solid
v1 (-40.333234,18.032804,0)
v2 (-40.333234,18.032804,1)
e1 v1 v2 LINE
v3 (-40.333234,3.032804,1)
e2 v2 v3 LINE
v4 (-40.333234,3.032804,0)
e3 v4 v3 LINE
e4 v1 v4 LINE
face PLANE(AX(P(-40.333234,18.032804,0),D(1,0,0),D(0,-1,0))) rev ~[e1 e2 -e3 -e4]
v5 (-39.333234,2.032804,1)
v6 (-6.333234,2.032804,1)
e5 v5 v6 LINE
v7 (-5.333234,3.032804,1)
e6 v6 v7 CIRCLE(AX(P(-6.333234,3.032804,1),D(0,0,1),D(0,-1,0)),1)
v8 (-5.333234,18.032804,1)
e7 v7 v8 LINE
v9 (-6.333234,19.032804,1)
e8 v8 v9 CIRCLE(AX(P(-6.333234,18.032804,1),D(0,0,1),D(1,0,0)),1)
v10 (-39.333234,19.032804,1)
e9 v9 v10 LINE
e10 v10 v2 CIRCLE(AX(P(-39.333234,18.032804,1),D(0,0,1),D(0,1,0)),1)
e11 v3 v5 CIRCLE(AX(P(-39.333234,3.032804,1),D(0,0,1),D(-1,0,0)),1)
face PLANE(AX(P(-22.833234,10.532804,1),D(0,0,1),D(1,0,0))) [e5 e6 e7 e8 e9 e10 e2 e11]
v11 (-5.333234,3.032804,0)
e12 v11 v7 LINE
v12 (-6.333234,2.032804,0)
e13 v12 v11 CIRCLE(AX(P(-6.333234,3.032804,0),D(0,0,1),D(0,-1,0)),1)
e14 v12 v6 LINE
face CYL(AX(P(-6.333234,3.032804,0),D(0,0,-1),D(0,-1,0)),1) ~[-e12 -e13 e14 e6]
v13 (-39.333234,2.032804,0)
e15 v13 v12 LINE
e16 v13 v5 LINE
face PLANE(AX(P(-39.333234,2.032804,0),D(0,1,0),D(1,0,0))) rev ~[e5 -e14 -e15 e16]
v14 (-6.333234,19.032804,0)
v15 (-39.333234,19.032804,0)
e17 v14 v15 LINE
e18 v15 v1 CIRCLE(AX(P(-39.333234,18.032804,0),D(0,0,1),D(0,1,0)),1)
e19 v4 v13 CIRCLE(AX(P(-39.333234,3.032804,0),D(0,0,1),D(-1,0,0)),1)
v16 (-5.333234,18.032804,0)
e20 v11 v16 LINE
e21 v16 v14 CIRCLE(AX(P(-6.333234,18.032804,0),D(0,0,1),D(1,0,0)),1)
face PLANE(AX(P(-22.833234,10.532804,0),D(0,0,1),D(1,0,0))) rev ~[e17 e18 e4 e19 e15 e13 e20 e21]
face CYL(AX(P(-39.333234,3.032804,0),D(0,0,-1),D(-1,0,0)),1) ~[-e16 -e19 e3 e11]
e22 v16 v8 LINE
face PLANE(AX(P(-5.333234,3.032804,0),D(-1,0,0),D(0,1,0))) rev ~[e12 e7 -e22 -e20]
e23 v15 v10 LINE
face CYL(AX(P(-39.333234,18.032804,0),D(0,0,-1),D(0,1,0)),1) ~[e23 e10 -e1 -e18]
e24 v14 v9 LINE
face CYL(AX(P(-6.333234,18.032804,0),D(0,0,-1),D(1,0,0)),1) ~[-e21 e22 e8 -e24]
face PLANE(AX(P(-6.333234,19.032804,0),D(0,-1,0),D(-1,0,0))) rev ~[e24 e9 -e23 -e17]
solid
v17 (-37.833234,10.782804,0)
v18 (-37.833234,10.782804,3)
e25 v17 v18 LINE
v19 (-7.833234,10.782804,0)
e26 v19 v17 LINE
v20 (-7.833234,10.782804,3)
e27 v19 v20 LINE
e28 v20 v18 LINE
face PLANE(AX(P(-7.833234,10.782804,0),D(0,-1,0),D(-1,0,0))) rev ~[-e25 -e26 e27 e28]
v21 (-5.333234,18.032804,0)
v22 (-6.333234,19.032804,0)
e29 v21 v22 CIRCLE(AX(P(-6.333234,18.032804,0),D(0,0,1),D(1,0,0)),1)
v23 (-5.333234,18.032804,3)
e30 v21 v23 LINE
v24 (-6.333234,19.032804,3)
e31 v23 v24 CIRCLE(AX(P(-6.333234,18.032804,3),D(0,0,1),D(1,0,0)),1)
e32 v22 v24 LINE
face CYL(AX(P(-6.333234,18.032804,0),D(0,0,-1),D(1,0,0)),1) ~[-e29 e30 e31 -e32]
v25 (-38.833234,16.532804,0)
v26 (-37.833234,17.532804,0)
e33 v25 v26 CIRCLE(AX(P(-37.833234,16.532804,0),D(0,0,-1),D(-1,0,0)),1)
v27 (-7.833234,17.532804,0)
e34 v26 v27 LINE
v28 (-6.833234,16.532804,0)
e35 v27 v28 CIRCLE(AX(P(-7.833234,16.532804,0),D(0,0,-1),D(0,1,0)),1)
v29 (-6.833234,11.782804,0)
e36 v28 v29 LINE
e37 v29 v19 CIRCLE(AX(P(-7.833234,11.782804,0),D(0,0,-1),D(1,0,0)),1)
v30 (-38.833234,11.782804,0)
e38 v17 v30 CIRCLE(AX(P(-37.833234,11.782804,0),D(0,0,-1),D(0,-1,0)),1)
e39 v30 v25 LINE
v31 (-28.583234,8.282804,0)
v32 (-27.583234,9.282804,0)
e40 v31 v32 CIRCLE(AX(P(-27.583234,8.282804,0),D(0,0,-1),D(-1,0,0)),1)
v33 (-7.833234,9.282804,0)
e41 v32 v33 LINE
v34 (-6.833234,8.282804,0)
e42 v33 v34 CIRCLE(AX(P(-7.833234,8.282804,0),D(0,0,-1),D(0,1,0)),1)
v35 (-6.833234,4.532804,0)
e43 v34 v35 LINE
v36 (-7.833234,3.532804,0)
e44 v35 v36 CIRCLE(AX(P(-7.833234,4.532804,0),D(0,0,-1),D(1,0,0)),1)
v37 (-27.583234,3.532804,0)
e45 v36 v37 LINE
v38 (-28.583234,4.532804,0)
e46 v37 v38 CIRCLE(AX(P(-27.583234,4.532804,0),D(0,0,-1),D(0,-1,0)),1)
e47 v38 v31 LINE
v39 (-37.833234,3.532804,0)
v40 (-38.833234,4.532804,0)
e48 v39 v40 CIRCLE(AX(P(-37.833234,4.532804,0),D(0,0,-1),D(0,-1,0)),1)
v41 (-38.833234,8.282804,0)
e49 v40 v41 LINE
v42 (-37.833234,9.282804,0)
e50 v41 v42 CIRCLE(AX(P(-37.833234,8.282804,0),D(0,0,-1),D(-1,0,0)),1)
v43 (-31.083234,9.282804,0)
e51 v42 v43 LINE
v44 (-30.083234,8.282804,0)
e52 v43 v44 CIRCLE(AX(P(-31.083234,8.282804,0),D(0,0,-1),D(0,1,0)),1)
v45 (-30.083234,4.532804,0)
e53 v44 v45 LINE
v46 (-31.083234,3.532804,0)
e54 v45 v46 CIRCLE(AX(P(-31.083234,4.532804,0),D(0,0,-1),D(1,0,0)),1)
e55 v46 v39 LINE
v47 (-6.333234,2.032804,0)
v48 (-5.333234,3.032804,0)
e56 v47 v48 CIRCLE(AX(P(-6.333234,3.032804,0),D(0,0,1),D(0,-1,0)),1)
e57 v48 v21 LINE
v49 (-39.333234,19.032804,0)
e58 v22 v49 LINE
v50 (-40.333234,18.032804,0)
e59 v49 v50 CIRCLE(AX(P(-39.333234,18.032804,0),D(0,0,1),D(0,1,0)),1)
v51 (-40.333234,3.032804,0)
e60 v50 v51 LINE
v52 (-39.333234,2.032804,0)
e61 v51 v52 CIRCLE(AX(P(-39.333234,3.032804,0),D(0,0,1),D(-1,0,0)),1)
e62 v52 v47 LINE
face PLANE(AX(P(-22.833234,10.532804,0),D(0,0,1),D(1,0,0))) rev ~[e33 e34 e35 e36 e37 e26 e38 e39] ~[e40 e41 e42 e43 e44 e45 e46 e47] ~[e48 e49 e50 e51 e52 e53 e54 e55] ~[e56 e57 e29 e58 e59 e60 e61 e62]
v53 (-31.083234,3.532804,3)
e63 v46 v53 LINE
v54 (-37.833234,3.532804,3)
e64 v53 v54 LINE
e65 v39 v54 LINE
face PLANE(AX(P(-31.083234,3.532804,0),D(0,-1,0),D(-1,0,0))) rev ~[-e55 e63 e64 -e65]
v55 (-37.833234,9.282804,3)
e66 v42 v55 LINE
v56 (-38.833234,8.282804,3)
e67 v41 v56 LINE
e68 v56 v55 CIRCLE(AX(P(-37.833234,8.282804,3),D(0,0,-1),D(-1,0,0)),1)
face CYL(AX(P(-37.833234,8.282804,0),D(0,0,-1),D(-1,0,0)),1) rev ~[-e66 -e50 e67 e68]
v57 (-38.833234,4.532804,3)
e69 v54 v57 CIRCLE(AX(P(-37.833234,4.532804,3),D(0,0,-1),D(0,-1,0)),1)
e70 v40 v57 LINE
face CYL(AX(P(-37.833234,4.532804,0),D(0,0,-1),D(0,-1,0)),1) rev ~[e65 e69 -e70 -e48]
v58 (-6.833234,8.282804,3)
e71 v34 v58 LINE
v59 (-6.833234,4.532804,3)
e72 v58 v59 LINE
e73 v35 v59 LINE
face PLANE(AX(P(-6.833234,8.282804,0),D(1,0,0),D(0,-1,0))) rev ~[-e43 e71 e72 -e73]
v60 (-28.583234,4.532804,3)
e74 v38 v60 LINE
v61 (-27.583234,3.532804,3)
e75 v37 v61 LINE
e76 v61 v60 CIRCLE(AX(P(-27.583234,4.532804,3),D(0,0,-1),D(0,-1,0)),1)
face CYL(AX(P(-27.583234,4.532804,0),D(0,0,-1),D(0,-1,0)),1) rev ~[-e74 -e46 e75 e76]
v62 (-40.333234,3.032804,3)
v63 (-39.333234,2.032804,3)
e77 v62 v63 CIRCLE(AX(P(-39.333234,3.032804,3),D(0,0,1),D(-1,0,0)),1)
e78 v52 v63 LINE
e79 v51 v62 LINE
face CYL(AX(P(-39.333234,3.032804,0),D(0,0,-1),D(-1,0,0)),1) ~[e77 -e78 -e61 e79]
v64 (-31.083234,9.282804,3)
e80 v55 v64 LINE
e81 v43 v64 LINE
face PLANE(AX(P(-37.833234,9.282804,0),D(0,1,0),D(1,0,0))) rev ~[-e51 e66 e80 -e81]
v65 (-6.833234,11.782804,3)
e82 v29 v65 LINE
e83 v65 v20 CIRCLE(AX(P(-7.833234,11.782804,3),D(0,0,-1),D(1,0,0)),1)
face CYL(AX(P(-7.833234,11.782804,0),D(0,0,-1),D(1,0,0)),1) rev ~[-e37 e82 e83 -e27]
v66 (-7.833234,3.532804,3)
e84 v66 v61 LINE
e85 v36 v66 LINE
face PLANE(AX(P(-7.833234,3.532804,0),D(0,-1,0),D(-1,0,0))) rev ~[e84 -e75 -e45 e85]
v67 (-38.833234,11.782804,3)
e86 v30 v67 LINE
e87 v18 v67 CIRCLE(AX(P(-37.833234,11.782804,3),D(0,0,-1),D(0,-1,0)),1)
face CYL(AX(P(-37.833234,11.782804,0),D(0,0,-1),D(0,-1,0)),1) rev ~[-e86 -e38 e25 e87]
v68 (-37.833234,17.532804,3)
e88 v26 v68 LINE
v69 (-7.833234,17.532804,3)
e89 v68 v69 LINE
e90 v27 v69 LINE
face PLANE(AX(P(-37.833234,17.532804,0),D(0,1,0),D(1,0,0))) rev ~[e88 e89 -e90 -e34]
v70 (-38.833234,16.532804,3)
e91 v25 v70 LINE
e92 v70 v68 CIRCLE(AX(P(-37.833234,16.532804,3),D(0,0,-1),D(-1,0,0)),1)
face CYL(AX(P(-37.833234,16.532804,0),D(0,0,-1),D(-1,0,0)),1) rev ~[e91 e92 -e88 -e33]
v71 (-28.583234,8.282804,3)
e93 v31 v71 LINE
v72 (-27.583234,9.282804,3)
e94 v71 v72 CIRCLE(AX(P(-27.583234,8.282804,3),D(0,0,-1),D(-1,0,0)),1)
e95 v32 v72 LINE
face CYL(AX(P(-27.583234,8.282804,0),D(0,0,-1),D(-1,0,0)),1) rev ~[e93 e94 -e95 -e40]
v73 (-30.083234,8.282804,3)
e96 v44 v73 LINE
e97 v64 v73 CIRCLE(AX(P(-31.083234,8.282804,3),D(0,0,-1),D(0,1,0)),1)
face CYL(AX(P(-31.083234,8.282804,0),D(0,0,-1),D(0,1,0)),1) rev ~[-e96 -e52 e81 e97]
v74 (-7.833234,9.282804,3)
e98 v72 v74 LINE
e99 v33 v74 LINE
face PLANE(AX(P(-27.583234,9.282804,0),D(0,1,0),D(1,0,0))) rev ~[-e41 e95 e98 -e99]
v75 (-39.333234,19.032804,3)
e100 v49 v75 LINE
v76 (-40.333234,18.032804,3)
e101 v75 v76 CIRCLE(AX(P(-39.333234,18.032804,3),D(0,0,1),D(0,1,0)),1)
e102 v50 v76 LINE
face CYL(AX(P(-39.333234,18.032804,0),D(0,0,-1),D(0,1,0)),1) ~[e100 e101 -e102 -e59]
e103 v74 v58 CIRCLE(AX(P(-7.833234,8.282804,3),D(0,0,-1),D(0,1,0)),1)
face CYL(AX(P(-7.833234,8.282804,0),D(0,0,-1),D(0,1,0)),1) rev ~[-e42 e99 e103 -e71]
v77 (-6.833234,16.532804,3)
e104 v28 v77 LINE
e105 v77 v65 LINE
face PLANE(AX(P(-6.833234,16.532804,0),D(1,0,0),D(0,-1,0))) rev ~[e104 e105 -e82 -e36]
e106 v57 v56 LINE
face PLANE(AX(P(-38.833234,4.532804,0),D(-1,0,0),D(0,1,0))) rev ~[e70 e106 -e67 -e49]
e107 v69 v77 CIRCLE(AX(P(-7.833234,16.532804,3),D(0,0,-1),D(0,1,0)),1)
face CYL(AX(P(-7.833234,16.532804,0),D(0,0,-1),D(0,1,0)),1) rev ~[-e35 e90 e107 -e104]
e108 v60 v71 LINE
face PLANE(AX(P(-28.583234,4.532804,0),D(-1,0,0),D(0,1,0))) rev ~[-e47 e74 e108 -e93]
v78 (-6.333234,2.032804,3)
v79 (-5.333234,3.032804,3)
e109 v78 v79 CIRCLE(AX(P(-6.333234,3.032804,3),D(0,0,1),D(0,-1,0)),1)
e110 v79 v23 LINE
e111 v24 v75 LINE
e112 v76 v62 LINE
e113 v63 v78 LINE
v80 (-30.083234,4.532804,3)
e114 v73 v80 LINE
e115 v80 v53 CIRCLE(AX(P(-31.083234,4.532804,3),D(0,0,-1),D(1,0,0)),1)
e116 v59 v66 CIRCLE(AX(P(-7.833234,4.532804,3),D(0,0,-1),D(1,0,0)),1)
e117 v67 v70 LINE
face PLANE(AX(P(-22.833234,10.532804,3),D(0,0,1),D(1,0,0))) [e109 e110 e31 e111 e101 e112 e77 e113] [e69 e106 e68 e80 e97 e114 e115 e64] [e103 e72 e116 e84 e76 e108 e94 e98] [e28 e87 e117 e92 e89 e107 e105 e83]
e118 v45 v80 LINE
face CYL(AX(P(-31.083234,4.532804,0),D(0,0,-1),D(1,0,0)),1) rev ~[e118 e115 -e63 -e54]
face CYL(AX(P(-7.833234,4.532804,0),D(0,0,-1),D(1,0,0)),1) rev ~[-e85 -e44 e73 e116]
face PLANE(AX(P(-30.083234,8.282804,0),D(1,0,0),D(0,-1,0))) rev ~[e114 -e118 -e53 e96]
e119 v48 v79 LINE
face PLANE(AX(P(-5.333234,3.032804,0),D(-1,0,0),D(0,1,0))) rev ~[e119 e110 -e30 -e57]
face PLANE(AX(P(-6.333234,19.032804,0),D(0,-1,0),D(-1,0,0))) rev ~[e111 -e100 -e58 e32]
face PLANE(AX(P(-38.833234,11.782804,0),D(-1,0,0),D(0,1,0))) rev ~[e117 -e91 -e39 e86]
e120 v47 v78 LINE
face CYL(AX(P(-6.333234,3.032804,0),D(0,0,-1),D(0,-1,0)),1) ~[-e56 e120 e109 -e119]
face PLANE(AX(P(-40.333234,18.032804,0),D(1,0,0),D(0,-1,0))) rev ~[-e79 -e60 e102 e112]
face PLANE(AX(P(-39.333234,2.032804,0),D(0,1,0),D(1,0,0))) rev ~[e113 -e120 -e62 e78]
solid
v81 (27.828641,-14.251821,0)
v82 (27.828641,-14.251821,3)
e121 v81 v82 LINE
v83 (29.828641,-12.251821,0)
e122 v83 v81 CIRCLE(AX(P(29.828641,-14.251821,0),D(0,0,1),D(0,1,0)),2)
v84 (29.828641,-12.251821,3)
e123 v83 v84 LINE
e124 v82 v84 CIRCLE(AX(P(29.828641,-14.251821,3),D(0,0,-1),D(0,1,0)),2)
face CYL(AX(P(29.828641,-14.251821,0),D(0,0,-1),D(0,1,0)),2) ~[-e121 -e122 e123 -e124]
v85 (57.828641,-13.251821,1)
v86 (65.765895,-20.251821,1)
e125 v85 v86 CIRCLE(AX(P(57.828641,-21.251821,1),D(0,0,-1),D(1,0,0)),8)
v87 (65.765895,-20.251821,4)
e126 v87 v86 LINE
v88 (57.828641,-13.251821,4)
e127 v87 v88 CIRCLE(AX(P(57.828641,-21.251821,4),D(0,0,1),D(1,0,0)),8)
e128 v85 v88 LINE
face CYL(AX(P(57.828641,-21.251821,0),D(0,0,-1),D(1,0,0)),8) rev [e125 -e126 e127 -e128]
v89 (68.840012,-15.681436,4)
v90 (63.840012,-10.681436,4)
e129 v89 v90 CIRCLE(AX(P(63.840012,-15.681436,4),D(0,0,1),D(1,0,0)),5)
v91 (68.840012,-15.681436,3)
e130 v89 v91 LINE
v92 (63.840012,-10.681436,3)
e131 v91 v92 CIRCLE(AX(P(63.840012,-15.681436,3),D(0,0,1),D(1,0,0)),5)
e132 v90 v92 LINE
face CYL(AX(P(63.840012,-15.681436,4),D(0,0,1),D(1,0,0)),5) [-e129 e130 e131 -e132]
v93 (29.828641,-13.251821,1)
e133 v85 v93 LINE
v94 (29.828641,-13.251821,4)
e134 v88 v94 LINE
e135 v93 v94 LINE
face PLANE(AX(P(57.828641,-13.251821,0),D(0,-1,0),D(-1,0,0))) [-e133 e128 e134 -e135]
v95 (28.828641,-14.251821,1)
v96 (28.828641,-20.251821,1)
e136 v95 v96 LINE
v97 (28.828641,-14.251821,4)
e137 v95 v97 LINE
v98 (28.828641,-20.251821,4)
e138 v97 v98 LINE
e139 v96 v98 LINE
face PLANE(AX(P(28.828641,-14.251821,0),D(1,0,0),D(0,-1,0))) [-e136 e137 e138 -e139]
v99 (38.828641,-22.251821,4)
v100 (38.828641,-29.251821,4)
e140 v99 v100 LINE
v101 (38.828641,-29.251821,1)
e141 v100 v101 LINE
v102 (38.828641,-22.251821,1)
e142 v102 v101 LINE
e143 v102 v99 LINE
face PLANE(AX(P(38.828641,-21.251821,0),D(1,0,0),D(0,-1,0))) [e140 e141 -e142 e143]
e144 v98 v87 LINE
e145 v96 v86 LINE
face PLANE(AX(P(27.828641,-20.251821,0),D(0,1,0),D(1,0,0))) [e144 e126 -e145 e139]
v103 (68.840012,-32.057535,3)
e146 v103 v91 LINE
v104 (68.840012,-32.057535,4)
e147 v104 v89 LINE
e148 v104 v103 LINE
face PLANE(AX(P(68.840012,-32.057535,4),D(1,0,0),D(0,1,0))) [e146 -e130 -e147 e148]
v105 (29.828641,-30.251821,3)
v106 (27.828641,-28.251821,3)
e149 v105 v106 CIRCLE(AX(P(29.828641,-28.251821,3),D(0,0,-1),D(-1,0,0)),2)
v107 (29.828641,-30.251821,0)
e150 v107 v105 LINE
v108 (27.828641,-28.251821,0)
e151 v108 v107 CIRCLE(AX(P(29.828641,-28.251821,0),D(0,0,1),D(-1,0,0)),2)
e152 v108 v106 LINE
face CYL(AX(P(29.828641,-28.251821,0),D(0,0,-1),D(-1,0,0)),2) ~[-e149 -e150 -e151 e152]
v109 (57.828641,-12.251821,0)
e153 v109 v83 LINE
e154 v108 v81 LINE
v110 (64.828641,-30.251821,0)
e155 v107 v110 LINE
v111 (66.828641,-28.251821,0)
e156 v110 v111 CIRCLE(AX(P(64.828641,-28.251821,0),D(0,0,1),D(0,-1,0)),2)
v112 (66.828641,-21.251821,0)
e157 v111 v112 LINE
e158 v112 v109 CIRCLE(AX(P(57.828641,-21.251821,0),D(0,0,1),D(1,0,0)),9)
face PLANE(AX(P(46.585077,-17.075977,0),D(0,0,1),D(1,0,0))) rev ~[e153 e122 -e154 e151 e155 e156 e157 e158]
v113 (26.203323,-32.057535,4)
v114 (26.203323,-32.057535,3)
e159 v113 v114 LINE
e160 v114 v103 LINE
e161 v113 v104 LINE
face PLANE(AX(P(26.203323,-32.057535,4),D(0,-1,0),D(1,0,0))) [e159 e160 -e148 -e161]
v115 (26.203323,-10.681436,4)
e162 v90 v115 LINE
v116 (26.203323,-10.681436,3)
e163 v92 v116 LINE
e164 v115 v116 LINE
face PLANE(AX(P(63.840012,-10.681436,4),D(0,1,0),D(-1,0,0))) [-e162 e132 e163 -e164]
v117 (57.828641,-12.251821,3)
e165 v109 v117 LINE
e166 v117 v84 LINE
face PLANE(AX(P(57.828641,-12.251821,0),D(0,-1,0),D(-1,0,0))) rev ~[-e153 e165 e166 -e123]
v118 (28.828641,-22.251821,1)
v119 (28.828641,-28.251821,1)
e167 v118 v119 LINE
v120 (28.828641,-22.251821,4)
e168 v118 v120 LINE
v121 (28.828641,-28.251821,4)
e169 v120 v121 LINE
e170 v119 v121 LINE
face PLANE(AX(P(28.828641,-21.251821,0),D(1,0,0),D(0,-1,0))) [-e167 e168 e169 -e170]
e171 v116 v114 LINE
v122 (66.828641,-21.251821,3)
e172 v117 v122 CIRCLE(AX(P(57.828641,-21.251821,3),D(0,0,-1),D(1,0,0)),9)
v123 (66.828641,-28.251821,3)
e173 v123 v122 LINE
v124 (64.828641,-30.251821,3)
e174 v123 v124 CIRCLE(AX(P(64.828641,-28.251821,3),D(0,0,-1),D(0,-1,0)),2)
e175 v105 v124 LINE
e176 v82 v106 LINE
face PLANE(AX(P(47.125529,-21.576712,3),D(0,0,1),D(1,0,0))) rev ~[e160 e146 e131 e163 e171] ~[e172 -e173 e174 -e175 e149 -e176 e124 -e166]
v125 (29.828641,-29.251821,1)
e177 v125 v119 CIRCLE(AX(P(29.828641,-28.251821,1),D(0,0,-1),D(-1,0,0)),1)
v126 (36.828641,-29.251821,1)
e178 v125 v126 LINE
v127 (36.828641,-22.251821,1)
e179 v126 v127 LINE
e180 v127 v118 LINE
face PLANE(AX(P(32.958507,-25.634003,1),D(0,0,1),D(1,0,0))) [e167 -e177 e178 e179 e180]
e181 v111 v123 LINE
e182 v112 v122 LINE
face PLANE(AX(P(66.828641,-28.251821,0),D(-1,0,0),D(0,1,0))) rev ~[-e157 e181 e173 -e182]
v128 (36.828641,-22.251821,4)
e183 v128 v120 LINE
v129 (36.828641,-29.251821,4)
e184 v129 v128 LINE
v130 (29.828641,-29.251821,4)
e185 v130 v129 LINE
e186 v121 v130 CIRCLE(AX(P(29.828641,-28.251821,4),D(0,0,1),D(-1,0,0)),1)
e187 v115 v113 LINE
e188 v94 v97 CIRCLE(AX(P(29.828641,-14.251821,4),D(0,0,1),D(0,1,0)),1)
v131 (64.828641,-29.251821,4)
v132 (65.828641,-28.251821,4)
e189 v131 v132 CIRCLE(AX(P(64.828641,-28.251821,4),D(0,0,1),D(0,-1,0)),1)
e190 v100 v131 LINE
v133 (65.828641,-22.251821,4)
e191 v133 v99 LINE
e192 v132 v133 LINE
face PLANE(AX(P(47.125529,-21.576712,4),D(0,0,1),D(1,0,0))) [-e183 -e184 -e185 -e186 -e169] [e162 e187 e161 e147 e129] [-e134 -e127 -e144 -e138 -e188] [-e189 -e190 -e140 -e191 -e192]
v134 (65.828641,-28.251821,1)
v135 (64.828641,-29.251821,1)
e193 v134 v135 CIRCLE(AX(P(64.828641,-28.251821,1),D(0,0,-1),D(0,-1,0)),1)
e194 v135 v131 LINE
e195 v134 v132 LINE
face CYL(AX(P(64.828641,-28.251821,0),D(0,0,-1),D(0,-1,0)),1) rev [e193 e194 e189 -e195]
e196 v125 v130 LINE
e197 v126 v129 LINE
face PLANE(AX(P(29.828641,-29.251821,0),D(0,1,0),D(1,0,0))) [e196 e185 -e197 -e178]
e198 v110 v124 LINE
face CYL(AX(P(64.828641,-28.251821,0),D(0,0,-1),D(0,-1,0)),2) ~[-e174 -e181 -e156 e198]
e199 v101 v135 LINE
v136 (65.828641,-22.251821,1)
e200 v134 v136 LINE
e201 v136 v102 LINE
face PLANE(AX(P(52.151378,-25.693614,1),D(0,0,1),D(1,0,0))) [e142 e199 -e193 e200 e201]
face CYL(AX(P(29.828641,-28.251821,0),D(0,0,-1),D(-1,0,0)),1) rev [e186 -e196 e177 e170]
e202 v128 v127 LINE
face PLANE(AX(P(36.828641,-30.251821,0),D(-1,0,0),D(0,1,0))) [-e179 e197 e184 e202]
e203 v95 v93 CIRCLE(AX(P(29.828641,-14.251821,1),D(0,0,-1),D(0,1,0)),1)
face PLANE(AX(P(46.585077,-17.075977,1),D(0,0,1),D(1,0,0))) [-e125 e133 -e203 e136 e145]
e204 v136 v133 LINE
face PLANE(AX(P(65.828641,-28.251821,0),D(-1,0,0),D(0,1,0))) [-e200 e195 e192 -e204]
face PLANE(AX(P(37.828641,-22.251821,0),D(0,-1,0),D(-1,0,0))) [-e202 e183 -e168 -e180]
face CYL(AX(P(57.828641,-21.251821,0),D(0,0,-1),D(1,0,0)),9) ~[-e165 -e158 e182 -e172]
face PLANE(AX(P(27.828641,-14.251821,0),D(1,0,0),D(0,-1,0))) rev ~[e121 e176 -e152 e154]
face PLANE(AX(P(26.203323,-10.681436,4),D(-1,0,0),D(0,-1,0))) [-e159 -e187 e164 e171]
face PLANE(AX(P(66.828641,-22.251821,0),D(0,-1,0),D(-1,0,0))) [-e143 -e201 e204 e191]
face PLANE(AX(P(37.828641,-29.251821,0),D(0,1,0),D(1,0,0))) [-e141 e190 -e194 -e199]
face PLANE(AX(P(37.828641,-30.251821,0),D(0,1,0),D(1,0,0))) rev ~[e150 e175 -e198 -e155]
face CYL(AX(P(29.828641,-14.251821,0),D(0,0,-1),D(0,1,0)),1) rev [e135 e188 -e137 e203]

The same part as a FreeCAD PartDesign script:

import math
import FreeCAD as App
import Part
import Sketcher
from FreeCAD import Vector


def faces_at(feature, points):
    """Names of the faces that lie closest to the given points."""
    faces = feature.Shape.Faces
    near = lambda p: min(range(len(faces)), key=lambda i: faces[i].distToShape(Part.Vertex(*p))[0])
    return sorted({f"Face{near(p) + 1}" for p in points})

doc = App.newDocument("Part")
body = doc.addObject("PartDesign::Body", "Body")

# Sketch on XY plane
sketch1 = body.newObject("Sketcher::SketchObject", "Sketch")
sketch1.AttachmentSupport = (doc.getObject("XY_Plane"), [""])
sketch1.MapMode = "FlatFace"
sketch1.addGeometry([
    Part.ArcOfCircle(Part.Circle(Vector(-39.3, 3, 0), Vector(0, 0, 1), 1), math.radians(180), math.radians(270)),  # 0
    Part.LineSegment(Vector(-39.3, 2, 0), Vector(-6.3, 2, 0)),  # 1
    Part.ArcOfCircle(Part.Circle(Vector(-6.3, 3, 0), Vector(0, 0, 1), 1), math.radians(-90), math.radians(0)),  # 2
    Part.LineSegment(Vector(-5.3, 3, 0), Vector(-5.3, 18, 0)),  # 3
    Part.ArcOfCircle(Part.Circle(Vector(-6.3, 18, 0), Vector(0, 0, 1), 1), math.radians(0), math.radians(90)),  # 4
    Part.LineSegment(Vector(-6.3, 19, 0), Vector(-39.3, 19, 0)),  # 5
    Part.ArcOfCircle(Part.Circle(Vector(-39.3, 18, 0), Vector(0, 0, 1), 1), math.radians(90), math.radians(180)),  # 6
    Part.LineSegment(Vector(-40.3, 18, 0), Vector(-40.3, 3, 0)),  # 7
    Part.LineSegment(Vector(-31.1, 3.5, 0), Vector(-37.8, 3.5, 0)),  # 8
    Part.ArcOfCircle(Part.Circle(Vector(-37.8, 4.5, 0), Vector(0, 0, 1), 1), math.radians(180), math.radians(270)),  # 9
    Part.LineSegment(Vector(-38.8, 4.5, 0), Vector(-38.8, 8.3, 0)),  # 10
    Part.ArcOfCircle(Part.Circle(Vector(-37.8, 8.3, 0), Vector(0, 0, 1), 1), math.radians(90), math.radians(180)),  # 11
    Part.LineSegment(Vector(-37.8, 9.3, 0), Vector(-31.1, 9.3, 0)),  # 12
    Part.ArcOfCircle(Part.Circle(Vector(-31.1, 8.3, 0), Vector(0, 0, 1), 1), math.radians(0), math.radians(90)),  # 13
    Part.LineSegment(Vector(-30.1, 8.3, 0), Vector(-30.1, 4.5, 0)),  # 14
    Part.ArcOfCircle(Part.Circle(Vector(-31.1, 4.5, 0), Vector(0, 0, 1), 1), math.radians(-90), math.radians(0)),  # 15
    Part.ArcOfCircle(Part.Circle(Vector(-7.8, 8.3, 0), Vector(0, 0, 1), 1), math.radians(0), math.radians(90)),  # 16
    Part.LineSegment(Vector(-6.8, 8.3, 0), Vector(-6.8, 4.5, 0)),  # 17
    Part.ArcOfCircle(Part.Circle(Vector(-7.8, 4.5, 0), Vector(0, 0, 1), 1), math.radians(-90), math.radians(0)),  # 18
    Part.LineSegment(Vector(-7.8, 3.5, 0), Vector(-27.6, 3.5, 0)),  # 19
    Part.ArcOfCircle(Part.Circle(Vector(-27.6, 4.5, 0), Vector(0, 0, 1), 1), math.radians(180), math.radians(270)),  # 20
    Part.LineSegment(Vector(-28.6, 4.5, 0), Vector(-28.6, 8.3, 0)),  # 21
    Part.ArcOfCircle(Part.Circle(Vector(-27.6, 8.3, 0), Vector(0, 0, 1), 1), math.radians(90), math.radians(180)),  # 22
    Part.LineSegment(Vector(-27.6, 9.3, 0), Vector(-7.8, 9.3, 0)),  # 23
    Part.LineSegment(Vector(-38.8, 11.8, 0), Vector(-38.8, 16.5, 0)),  # 24
    Part.ArcOfCircle(Part.Circle(Vector(-37.8, 16.5, 0), Vector(0, 0, 1), 1), math.radians(90), math.radians(180)),  # 25
    Part.LineSegment(Vector(-37.8, 17.5, 0), Vector(-7.8, 17.5, 0)),  # 26
    Part.ArcOfCircle(Part.Circle(Vector(-7.8, 16.5, 0), Vector(0, 0, 1), 1), math.radians(0), math.radians(90)),  # 27
    Part.LineSegment(Vector(-6.8, 16.5, 0), Vector(-6.8, 11.8, 0)),  # 28
    Part.ArcOfCircle(Part.Circle(Vector(-7.8, 11.8, 0), Vector(0, 0, 1), 1), math.radians(-90), math.radians(0)),  # 29
    Part.LineSegment(Vector(-7.8, 10.8, 0), Vector(-37.8, 10.8, 0)),  # 30
    Part.ArcOfCircle(Part.Circle(Vector(-37.8, 11.8, 0), Vector(0, 0, 1), 1), math.radians(180), math.radians(270)),  # 31
], False)
sketch1.addConstraint([
    Sketcher.Constraint("Tangent", 0, 2, 1, 1),
    Sketcher.Constraint("Tangent", 1, 2, 2, 1),
    Sketcher.Constraint("Tangent", 2, 2, 3, 1),
    Sketcher.Constraint("Tangent", 3, 2, 4, 1),
    Sketcher.Constraint("Tangent", 4, 2, 5, 1),
    Sketcher.Constraint("Tangent", 5, 2, 6, 1),
    Sketcher.Constraint("Tangent", 6, 2, 7, 1),
    Sketcher.Constraint("Tangent", 7, 2, 0, 1),
    Sketcher.Constraint("Tangent", 8, 2, 9, 2),
    Sketcher.Constraint("Tangent", 9, 1, 10, 1),
    Sketcher.Constraint("Tangent", 10, 2, 11, 2),
    Sketcher.Constraint("Tangent", 11, 1, 12, 1),
    Sketcher.Constraint("Tangent", 12, 2, 13, 2),
    Sketcher.Constraint("Tangent", 13, 1, 14, 1),
    Sketcher.Constraint("Tangent", 14, 2, 15, 2),
    Sketcher.Constraint("Tangent", 15, 1, 8, 1),
    Sketcher.Constraint("Tangent", 16, 1, 17, 1),
    Sketcher.Constraint("Tangent", 17, 2, 18, 2),
    Sketcher.Constraint("Tangent", 18, 1, 19, 1),
    Sketcher.Constraint("Tangent", 19, 2, 20, 2),
    Sketcher.Constraint("Tangent", 20, 1, 21, 1),
    Sketcher.Constraint("Tangent", 21, 2, 22, 2),
    Sketcher.Constraint("Tangent", 22, 1, 23, 1),
    Sketcher.Constraint("Tangent", 23, 2, 16, 2),
    Sketcher.Constraint("Tangent", 24, 2, 25, 2),
    Sketcher.Constraint("Tangent", 25, 1, 26, 1),
    Sketcher.Constraint("Tangent", 26, 2, 27, 2),
    Sketcher.Constraint("Tangent", 27, 1, 28, 1),
    Sketcher.Constraint("Tangent", 28, 2, 29, 2),
    Sketcher.Constraint("Tangent", 29, 1, 30, 1),
    Sketcher.Constraint("Tangent", 30, 2, 31, 2),
    Sketcher.Constraint("Tangent", 31, 1, 24, 1),
    Sketcher.Constraint("Horizontal", 1),
    Sketcher.Constraint("Vertical", 3),
    Sketcher.Constraint("Horizontal", 5),
    Sketcher.Constraint("Vertical", 7),
    Sketcher.Constraint("Horizontal", 8),
    Sketcher.Constraint("Vertical", 10),
    Sketcher.Constraint("Horizontal", 12),
    Sketcher.Constraint("Vertical", 14),
    Sketcher.Constraint("Vertical", 17),
    Sketcher.Constraint("Horizontal", 19),
    Sketcher.Constraint("Vertical", 21),
    Sketcher.Constraint("Horizontal", 23),
    Sketcher.Constraint("Vertical", 24),
    Sketcher.Constraint("Horizontal", 26),
    Sketcher.Constraint("Vertical", 28),
    Sketcher.Constraint("Horizontal", 30),
    Sketcher.Constraint("Equal", 0, 2),
    Sketcher.Constraint("Equal", 2, 4),
    Sketcher.Constraint("Equal", 4, 6),
    Sketcher.Constraint("Equal", 6, 9),
    Sketcher.Constraint("Equal", 9, 11),
    Sketcher.Constraint("Equal", 11, 13),
    Sketcher.Constraint("Equal", 13, 15),
    Sketcher.Constraint("Equal", 15, 16),
    Sketcher.Constraint("Equal", 16, 18),
    Sketcher.Constraint("Equal", 18, 20),
    Sketcher.Constraint("Equal", 20, 22),
    Sketcher.Constraint("Equal", 22, 25),
    Sketcher.Constraint("Equal", 25, 27),
    Sketcher.Constraint("Equal", 27, 29),
    Sketcher.Constraint("Equal", 29, 31),
    Sketcher.Constraint("Horizontal", 13, 3, 16, 3),
    Sketcher.Constraint("Horizontal", 15, 3, 18, 3),
    Sketcher.Constraint("Vertical", 11, 3, 25, 3),
    Sketcher.Constraint("Vertical", 18, 3, 27, 3),
    Sketcher.Constraint("Radius", 0, 1.0),
    Sketcher.Constraint("DistanceX", 1, 1, 1, 2, 33.0),
    Sketcher.Constraint("DistanceX", 26, 1, 26, 2, 30.0),
    Sketcher.Constraint("DistanceY", 3, 1, 3, 2, 15.0),
    Sketcher.Constraint("DistanceY", 9, 3, 25, 3, 12.0),
    Sketcher.Constraint("DistanceX", 8, 2, 8, 1, 6.75),
    Sketcher.Constraint("DistanceX", 19, 2, 19, 1, 19.75),
    Sketcher.Constraint("DistanceY", 10, 1, 10, 2, 3.75),
    Sketcher.Constraint("DistanceY", 24, 1, 24, 2, 4.75),
    Sketcher.Constraint("DistanceX", 0, 3, 9, 3, 1.5),
    Sketcher.Constraint("DistanceY", 0, 3, 9, 3, 1.5),
    Sketcher.Constraint("DistanceX", 0, 3, -1, 1, 39.333234),
    Sketcher.Constraint("DistanceY", -1, 1, 0, 3, 3.032804),
])
pad1 = body.newObject("PartDesign::Pad", "Pad")
pad1.Profile = sketch1
pad1.Length = 3
body2 = doc.addObject("PartDesign::Body", "Body001")

# Sketch on XY plane
sketch2 = body2.newObject("Sketcher::SketchObject", "Sketch001")
sketch2.AttachmentSupport = (doc.getObject("XY_Plane001"), [""])
sketch2.MapMode = "FlatFace"
sketch2.addGeometry([
    Part.ArcOfCircle(Part.Circle(Vector(-39.3, 3, 0), Vector(0, 0, 1), 1), math.radians(180), math.radians(270)),  # 0
    Part.LineSegment(Vector(-39.3, 2, 0), Vector(-6.3, 2, 0)),  # 1
    Part.ArcOfCircle(Part.Circle(Vector(-6.3, 3, 0), Vector(0, 0, 1), 1), math.radians(-90), math.radians(0)),  # 2
    Part.LineSegment(Vector(-5.3, 3, 0), Vector(-5.3, 18, 0)),  # 3
    Part.ArcOfCircle(Part.Circle(Vector(-6.3, 18, 0), Vector(0, 0, 1), 1), math.radians(0), math.radians(90)),  # 4
    Part.LineSegment(Vector(-6.3, 19, 0), Vector(-39.3, 19, 0)),  # 5
    Part.ArcOfCircle(Part.Circle(Vector(-39.3, 18, 0), Vector(0, 0, 1), 1), math.radians(90), math.radians(180)),  # 6
    Part.LineSegment(Vector(-40.3, 18, 0), Vector(-40.3, 3, 0)),  # 7
], False)
sketch2.addConstraint([
    Sketcher.Constraint("Tangent", 0, 2, 1, 1),
    Sketcher.Constraint("Tangent", 1, 2, 2, 1),
    Sketcher.Constraint("Tangent", 2, 2, 3, 1),
    Sketcher.Constraint("Tangent", 3, 2, 4, 1),
    Sketcher.Constraint("Tangent", 4, 2, 5, 1),
    Sketcher.Constraint("Tangent", 5, 2, 6, 1),
    Sketcher.Constraint("Tangent", 6, 2, 7, 1),
    Sketcher.Constraint("Tangent", 7, 2, 0, 1),
    Sketcher.Constraint("Horizontal", 1),
    Sketcher.Constraint("Vertical", 3),
    Sketcher.Constraint("Horizontal", 5),
    Sketcher.Constraint("Vertical", 7),
    Sketcher.Constraint("Equal", 0, 2),
    Sketcher.Constraint("Equal", 2, 4),
    Sketcher.Constraint("Equal", 4, 6),
    Sketcher.Constraint("Radius", 0, 1.0),
    Sketcher.Constraint("DistanceX", 1, 1, 1, 2, 33.0),
    Sketcher.Constraint("DistanceY", 3, 1, 3, 2, 15.0),
    Sketcher.Constraint("DistanceX", 0, 3, -1, 1, 39.333234),
    Sketcher.Constraint("DistanceY", -1, 1, 0, 3, 3.032804),
])
pad2 = body2.newObject("PartDesign::Pad", "Pad001")
pad2.Profile = sketch2
pad2.Length = 1
body3 = doc.addObject("PartDesign::Body", "Body002")

# Sketch on XY plane
sketch3 = body3.newObject("Sketcher::SketchObject", "Sketch002")
sketch3.AttachmentSupport = (doc.getObject("XY_Plane002"), [""])
sketch3.MapMode = "FlatFace"
sketch3.addGeometry([
    Part.ArcOfCircle(Part.Circle(Vector(29.8, -28.3, 0), Vector(0, 0, 1), 2), math.radians(180), math.radians(270)),  # 0
    Part.LineSegment(Vector(29.8, -30.3, 0), Vector(37.8, -30.3, 0)),  # 1
    Part.LineSegment(Vector(37.8, -30.3, 0), Vector(37.8, -21.3, 0)),  # 2
    Part.LineSegment(Vector(37.8, -21.3, 0), Vector(27.8, -21.3, 0)),  # 3
    Part.LineSegment(Vector(27.8, -21.3, 0), Vector(27.8, -28.3, 0)),  # 4
], False)
sketch3.addConstraint([
    Sketcher.Constraint("Tangent", 0, 2, 1, 1),
    Sketcher.Constraint("Coincident", 1, 2, 2, 1),
    Sketcher.Constraint("Coincident", 2, 2, 3, 1),
    Sketcher.Constraint("Coincident", 3, 2, 4, 1),
    Sketcher.Constraint("Tangent", 4, 2, 0, 1),
    Sketcher.Constraint("Horizontal", 1),
    Sketcher.Constraint("Vertical", 2),
    Sketcher.Constraint("Horizontal", 3),
    Sketcher.Constraint("Vertical", 4),
    Sketcher.Constraint("Radius", 0, 2.0),
    Sketcher.Constraint("DistanceX", 1, 1, 1, 2, 8.0),
    Sketcher.Constraint("DistanceY", 2, 1, 2, 2, 9.0),
    Sketcher.Constraint("DistanceX", -1, 1, 0, 3, 29.828641),
    Sketcher.Constraint("DistanceY", 0, 3, -1, 1, 28.251821),
])
pad3 = body3.newObject("PartDesign::Pad", "Pad002")
pad3.Profile = sketch3
pad3.Length = 4
doc.recompute()

thickness = body3.newObject("PartDesign::Thickness", "Thickness")
thickness.Base = (pad3, faces_at(pad3, [(32.829, -25.752, 4)]))
thickness.Value = 1
thickness.Reversed = True
thickness.Join = "Arc"
body4 = doc.addObject("PartDesign::Body", "Body003")

# Sketch on XY plane
sketch4 = body4.newObject("Sketcher::SketchObject", "Sketch003")
sketch4.AttachmentSupport = (doc.getObject("XY_Plane003"), [""])
sketch4.MapMode = "FlatFace"
sketch4.addGeometry([
    Part.LineSegment(Vector(37.8, -21.3, 0), Vector(37.8, -30.3, 0)),  # 0
    Part.LineSegment(Vector(37.8, -30.3, 0), Vector(64.8, -30.3, 0)),  # 1
    Part.ArcOfCircle(Part.Circle(Vector(64.8, -28.3, 0), Vector(0, 0, 1), 2), math.radians(-90), math.radians(0)),  # 2
    Part.LineSegment(Vector(66.8, -28.3, 0), Vector(66.8, -21.3, 0)),  # 3
    Part.LineSegment(Vector(66.8, -21.3, 0), Vector(37.8, -21.3, 0)),  # 4
], False)
sketch4.addConstraint([
    Sketcher.Constraint("Coincident", 0, 2, 1, 1),
    Sketcher.Constraint("Tangent", 1, 2, 2, 1),
    Sketcher.Constraint("Tangent", 2, 2, 3, 1),
    Sketcher.Constraint("Coincident", 3, 2, 4, 1),
    Sketcher.Constraint("Coincident", 4, 2, 0, 1),
    Sketcher.Constraint("Vertical", 0),
    Sketcher.Constraint("Horizontal", 1),
    Sketcher.Constraint("Vertical", 3),
    Sketcher.Constraint("Horizontal", 4),
    Sketcher.Constraint("Radius", 2, 2.0),
    Sketcher.Constraint("DistanceX", 1, 1, 1, 2, 27.0),
    Sketcher.Constraint("DistanceY", 0, 2, 0, 1, 9.0),
    Sketcher.Constraint("DistanceX", -1, 1, 2, 3, 64.828641),
    Sketcher.Constraint("DistanceY", 2, 3, -1, 1, 28.251821),
])
pad4 = body4.newObject("PartDesign::Pad", "Pad003")
pad4.Profile = sketch4
pad4.Length = 4
doc.recompute()

thickness2 = body4.newObject("PartDesign::Thickness", "Thickness001")
thickness2.Base = (pad4, faces_at(pad4, [(52.329, -25.752, 4)]))
thickness2.Value = 1
thickness2.Reversed = True
thickness2.Join = "Arc"
body5 = doc.addObject("PartDesign::Body", "Body004")

# Sketch on XY plane
sketch5 = body5.newObject("Sketcher::SketchObject", "Sketch004")
sketch5.AttachmentSupport = (doc.getObject("XY_Plane004"), [""])
sketch5.MapMode = "FlatFace"
sketch5.addGeometry([
    Part.LineSegment(Vector(27.8, -21.3, 0), Vector(66.8, -21.3, 0)),  # 0
    Part.ArcOfCircle(Part.Circle(Vector(57.8, -21.3, 0), Vector(0, 0, 1), 9), math.radians(0), math.radians(90)),  # 1
    Part.LineSegment(Vector(57.8, -12.3, 0), Vector(29.8, -12.3, 0)),  # 2
    Part.ArcOfCircle(Part.Circle(Vector(29.8, -14.3, 0), Vector(0, 0, 1), 2), math.radians(90), math.radians(180)),  # 3
    Part.LineSegment(Vector(27.8, -14.3, 0), Vector(27.8, -21.3, 0)),  # 4
], False)
sketch5.addConstraint([
    Sketcher.Constraint("Coincident", 0, 2, 1, 1),
    Sketcher.Constraint("Tangent", 1, 2, 2, 1),
    Sketcher.Constraint("Tangent", 2, 2, 3, 1),
    Sketcher.Constraint("Tangent", 3, 2, 4, 1),
    Sketcher.Constraint("Coincident", 4, 2, 0, 1),
    Sketcher.Constraint("Horizontal", 0),
    Sketcher.Constraint("Horizontal", 2),
    Sketcher.Constraint("Vertical", 4),
    Sketcher.Constraint("Horizontal", 1, 3, 0, 2),
    Sketcher.Constraint("Radius", 1, 9.0),
    Sketcher.Constraint("Radius", 3, 2.0),
    Sketcher.Constraint("DistanceX", 0, 1, 0, 2, 39.0),
    Sketcher.Constraint("DistanceX", -1, 1, 1, 3, 57.828641),
    Sketcher.Constraint("DistanceY", 1, 3, -1, 1, 21.251821),
])
pad5 = body5.newObject("PartDesign::Pad", "Pad004")
pad5.Profile = sketch5
pad5.Length = 4
doc.recompute()

thickness3 = body5.newObject("PartDesign::Thickness", "Thickness002")
thickness3.Base = (pad5, faces_at(pad5, [(47.329, -16.752, 4)]))
thickness3.Value = 1
thickness3.Reversed = True
thickness3.Join = "Arc"
doc.recompute()

boolean = body3.newObject("PartDesign::Boolean", "Boolean")
boolean.Type = "Fuse"
boolean.addObjects([body4])
doc.recompute()

boolean2 = body3.newObject("PartDesign::Boolean", "Boolean001")
boolean2.Type = "Fuse"
boolean2.addObjects([body5])

# Sketch on XY plane
sketch6 = body3.newObject("Sketcher::SketchObject", "Sketch005")
sketch6.AttachmentSupport = (doc.getObject("XY_Plane002"), [""])
sketch6.MapMode = "FlatFace"
sketch6.AttachmentOffset = App.Placement(Vector(0, 0, 4), App.Rotation())
sketch6.addGeometry([
    Part.LineSegment(Vector(26.2, -10.7, 0), Vector(26.2, -32.1, 0)),  # 0
    Part.LineSegment(Vector(26.2, -32.1, 0), Vector(68.8, -32.1, 0)),  # 1
    Part.LineSegment(Vector(68.8, -32.1, 0), Vector(68.8, -15.7, 0)),  # 2
    Part.ArcOfCircle(Part.Circle(Vector(63.8, -15.7, 0), Vector(0, 0, 1), 5), math.radians(0), math.radians(90)),  # 3
    Part.LineSegment(Vector(63.8, -10.7, 0), Vector(26.2, -10.7, 0)),  # 4
    Part.ArcOfCircle(Part.Circle(Vector(29.8, -28.3, 0), Vector(0, 0, 1), 1), math.radians(180), math.radians(270)),  # 5
    Part.LineSegment(Vector(28.8, -28.3, 0), Vector(28.8, -22.3, 0)),  # 6
    Part.LineSegment(Vector(28.8, -22.3, 0), Vector(36.8, -22.3, 0)),  # 7
    Part.LineSegment(Vector(36.8, -22.3, 0), Vector(36.8, -29.3, 0)),  # 8
    Part.LineSegment(Vector(36.8, -29.3, 0), Vector(29.8, -29.3, 0)),  # 9
    Part.LineSegment(Vector(38.8, -29.3, 0), Vector(38.8, -22.3, 0)),  # 10
    Part.LineSegment(Vector(38.8, -22.3, 0), Vector(65.8, -22.3, 0)),  # 11
    Part.LineSegment(Vector(65.8, -22.3, 0), Vector(65.8, -28.3, 0)),  # 12
    Part.ArcOfCircle(Part.Circle(Vector(64.8, -28.3, 0), Vector(0, 0, 1), 1), math.radians(-90), math.radians(0)),  # 13
    Part.LineSegment(Vector(64.8, -29.3, 0), Vector(38.8, -29.3, 0)),  # 14
    Part.LineSegment(Vector(29.8, -13.3, 0), Vector(57.8, -13.3, 0)),  # 15
    Part.ArcOfCircle(Part.Circle(Vector(57.8, -21.3, 0), Vector(0, 0, 1), 8), math.radians(7), math.radians(90)),  # 16
    Part.LineSegment(Vector(65.8, -20.3, 0), Vector(28.8, -20.3, 0)),  # 17
    Part.LineSegment(Vector(28.8, -20.3, 0), Vector(28.8, -14.3, 0)),  # 18
    Part.ArcOfCircle(Part.Circle(Vector(29.8, -14.3, 0), Vector(0, 0, 1), 1), math.radians(90), math.radians(180)),  # 19
], False)
sketch6.addConstraint([
    Sketcher.Constraint("Coincident", 0, 2, 1, 1),
    Sketcher.Constraint("Coincident", 1, 2, 2, 1),
    Sketcher.Constraint("Tangent", 2, 2, 3, 1),
    Sketcher.Constraint("Tangent", 3, 2, 4, 1),
    Sketcher.Constraint("Coincident", 4, 2, 0, 1),
    Sketcher.Constraint("Tangent", 5, 1, 6, 1),
    Sketcher.Constraint("Coincident", 6, 2, 7, 1),
    Sketcher.Constraint("Coincident", 7, 2, 8, 1),
    Sketcher.Constraint("Coincident", 8, 2, 9, 1),
    Sketcher.Constraint("Tangent", 9, 2, 5, 2),
    Sketcher.Constraint("Coincident", 10, 2, 11, 1),
    Sketcher.Constraint("Coincident", 11, 2, 12, 1),
    Sketcher.Constraint("Tangent", 12, 2, 13, 2),
    Sketcher.Constraint("Tangent", 13, 1, 14, 1),
    Sketcher.Constraint("Coincident", 14, 2, 10, 1),
    Sketcher.Constraint("Tangent", 15, 2, 16, 2),
    Sketcher.Constraint("Coincident", 16, 1, 17, 1),
    Sketcher.Constraint("Coincident", 17, 2, 18, 1),
    Sketcher.Constraint("Tangent", 18, 2, 19, 2),
    Sketcher.Constraint("Tangent", 19, 1, 15, 1),
    Sketcher.Constraint("Vertical", 0),
    Sketcher.Constraint("Horizontal", 1),
    Sketcher.Constraint("Vertical", 2),
    Sketcher.Constraint("Horizontal", 4),
    Sketcher.Constraint("Vertical", 6),
    Sketcher.Constraint("Horizontal", 7),
    Sketcher.Constraint("Vertical", 8),
    Sketcher.Constraint("Horizontal", 9),
    Sketcher.Constraint("Vertical", 10),
    Sketcher.Constraint("Horizontal", 11),
    Sketcher.Constraint("Vertical", 12),
    Sketcher.Constraint("Horizontal", 14),
    Sketcher.Constraint("Horizontal", 15),
    Sketcher.Constraint("Horizontal", 17),
    Sketcher.Constraint("Vertical", 18),
    Sketcher.Constraint("Equal", 5, 13),
    Sketcher.Constraint("Equal", 13, 19),
    Sketcher.Constraint("Horizontal", 5, 3, 13, 3),
    Sketcher.Constraint("Horizontal", 7, 2, 10, 2),
    Sketcher.Constraint("Vertical", 5, 3, 19, 3),
    Sketcher.Constraint("Equal", 9, 8),
    Sketcher.Constraint("Equal", 12, 18),
    Sketcher.Constraint("Radius", 3, 5.0),
    Sketcher.Constraint("Radius", 5, 1.0),
    Sketcher.Constraint("Radius", 16, 8.0),
    Sketcher.Constraint("DistanceX", 7, 1, 7, 2, 8.0),
    Sketcher.Constraint("DistanceX", 11, 1, 11, 2, 27.0),
    Sketcher.Constraint("DistanceX", 15, 1, 15, 2, 28.0),
    Sketcher.Constraint("DistanceX", 5, 3, 13, 3, 35.0),
    Sketcher.Constraint("DistanceY", 13, 3, 16, 3, 7.0),
    Sketcher.Constraint("DistanceY", 0, 2, 0, 1, 21.376099),
    Sketcher.Constraint("DistanceX", 1, 1, 1, 2, 42.636689),
    Sketcher.Constraint("DistanceX", -1, 1, 3, 3, 63.840012),
    Sketcher.Constraint("DistanceX", -1, 1, 5, 3, 29.828641),
    Sketcher.Constraint("DistanceY", 5, 3, -1, 1, 28.251821),
    Sketcher.Constraint("DistanceY", 3, 3, -1, 1, 15.681436),
])
pad6 = body3.newObject("PartDesign::Pad", "Pad005")
pad6.Profile = sketch6
pad6.Length = 1
pad6.Reversed = True

doc.recompute()
